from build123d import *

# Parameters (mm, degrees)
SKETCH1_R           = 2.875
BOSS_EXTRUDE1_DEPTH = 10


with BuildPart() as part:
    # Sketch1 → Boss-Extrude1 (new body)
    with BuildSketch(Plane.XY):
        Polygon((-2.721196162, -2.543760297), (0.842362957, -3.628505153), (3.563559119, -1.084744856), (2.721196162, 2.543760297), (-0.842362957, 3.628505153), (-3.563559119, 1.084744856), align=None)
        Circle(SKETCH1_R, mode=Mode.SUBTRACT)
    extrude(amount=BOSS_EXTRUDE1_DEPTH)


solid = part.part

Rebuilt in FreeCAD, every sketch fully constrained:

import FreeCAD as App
import Part
import Sketcher
from FreeCAD import Vector
Q = App.Units.Quantity


def add_polygon(sketch, points):
    """Adds a closed chain of lines whose ends are joined by coincident constraints."""
    first, n = sketch.GeometryCount, len(points)
    for a, b in zip(points, points[1:] + points[:1]):
        sketch.addGeometry(Part.LineSegment(App.Vector(*a, 0), App.Vector(*b, 0)), False)
    for i in range(n):
        sketch.addConstraint(Sketcher.Constraint("Coincident", first + i, 2, first + (i + 1) % n, 1))

doc = App.newDocument("Part")
body = doc.addObject("PartDesign::Body", "Body")

sketch1 = body.newObject("Sketcher::SketchObject", "Sketch")
sketch1.AttachmentSupport = (doc.getObject("XY_Plane"), [""])
sketch1.MapMode = "FlatFace"
add_polygon(sketch1, [(-2.7, -2.5), (0.8, -3.6), (3.6, -1.1), (2.7, 2.5), (-0.8, 3.6), (-3.6, 1.1)])
sketch1.addGeometry(Part.Circle(Vector(0, 0, 0), Vector(0, 0, 1), 2.9), False)
sketch1.addConstraint(Sketcher.Constraint("Coincident", 6, 3, -1, 1))
sketch1.addConstraint(Sketcher.Constraint("Symmetric", 0, 2, 3, 2, -1, 1))
sketch1.addConstraint(Sketcher.Constraint("Symmetric", 1, 2, 4, 2, -1, 1))
sketch1.addConstraint(Sketcher.Constraint("Symmetric", 2, 2, 5, 2, -1, 1))
sketch1.addConstraint(Sketcher.Constraint("Equal", 0, 1))
sketch1.addConstraint(Sketcher.Constraint("Equal", 1, 2))
sketch1.addConstraint(Sketcher.Constraint("Diameter", 6, Q("5.75 mm")))
sketch1.addConstraint(Sketcher.Constraint("Distance", 0, Q("3.725 mm")))
sketch1.addConstraint(Sketcher.Constraint("DistanceX", -1, 1, 1, 2, Q("3.563559 mm")))
sketch1.addConstraint(Sketcher.Constraint("DistanceY", -1, 1, 2, 2, Q("2.54376 mm")))
sketch1.addConstraint(Sketcher.Constraint("DistanceY", 0, 2, 1, 2, Q("2.54376 mm")))
pad1 = body.newObject("PartDesign::Pad", "Pad")
pad1.Profile = sketch1
pad1.Length = 10

doc.recompute()
